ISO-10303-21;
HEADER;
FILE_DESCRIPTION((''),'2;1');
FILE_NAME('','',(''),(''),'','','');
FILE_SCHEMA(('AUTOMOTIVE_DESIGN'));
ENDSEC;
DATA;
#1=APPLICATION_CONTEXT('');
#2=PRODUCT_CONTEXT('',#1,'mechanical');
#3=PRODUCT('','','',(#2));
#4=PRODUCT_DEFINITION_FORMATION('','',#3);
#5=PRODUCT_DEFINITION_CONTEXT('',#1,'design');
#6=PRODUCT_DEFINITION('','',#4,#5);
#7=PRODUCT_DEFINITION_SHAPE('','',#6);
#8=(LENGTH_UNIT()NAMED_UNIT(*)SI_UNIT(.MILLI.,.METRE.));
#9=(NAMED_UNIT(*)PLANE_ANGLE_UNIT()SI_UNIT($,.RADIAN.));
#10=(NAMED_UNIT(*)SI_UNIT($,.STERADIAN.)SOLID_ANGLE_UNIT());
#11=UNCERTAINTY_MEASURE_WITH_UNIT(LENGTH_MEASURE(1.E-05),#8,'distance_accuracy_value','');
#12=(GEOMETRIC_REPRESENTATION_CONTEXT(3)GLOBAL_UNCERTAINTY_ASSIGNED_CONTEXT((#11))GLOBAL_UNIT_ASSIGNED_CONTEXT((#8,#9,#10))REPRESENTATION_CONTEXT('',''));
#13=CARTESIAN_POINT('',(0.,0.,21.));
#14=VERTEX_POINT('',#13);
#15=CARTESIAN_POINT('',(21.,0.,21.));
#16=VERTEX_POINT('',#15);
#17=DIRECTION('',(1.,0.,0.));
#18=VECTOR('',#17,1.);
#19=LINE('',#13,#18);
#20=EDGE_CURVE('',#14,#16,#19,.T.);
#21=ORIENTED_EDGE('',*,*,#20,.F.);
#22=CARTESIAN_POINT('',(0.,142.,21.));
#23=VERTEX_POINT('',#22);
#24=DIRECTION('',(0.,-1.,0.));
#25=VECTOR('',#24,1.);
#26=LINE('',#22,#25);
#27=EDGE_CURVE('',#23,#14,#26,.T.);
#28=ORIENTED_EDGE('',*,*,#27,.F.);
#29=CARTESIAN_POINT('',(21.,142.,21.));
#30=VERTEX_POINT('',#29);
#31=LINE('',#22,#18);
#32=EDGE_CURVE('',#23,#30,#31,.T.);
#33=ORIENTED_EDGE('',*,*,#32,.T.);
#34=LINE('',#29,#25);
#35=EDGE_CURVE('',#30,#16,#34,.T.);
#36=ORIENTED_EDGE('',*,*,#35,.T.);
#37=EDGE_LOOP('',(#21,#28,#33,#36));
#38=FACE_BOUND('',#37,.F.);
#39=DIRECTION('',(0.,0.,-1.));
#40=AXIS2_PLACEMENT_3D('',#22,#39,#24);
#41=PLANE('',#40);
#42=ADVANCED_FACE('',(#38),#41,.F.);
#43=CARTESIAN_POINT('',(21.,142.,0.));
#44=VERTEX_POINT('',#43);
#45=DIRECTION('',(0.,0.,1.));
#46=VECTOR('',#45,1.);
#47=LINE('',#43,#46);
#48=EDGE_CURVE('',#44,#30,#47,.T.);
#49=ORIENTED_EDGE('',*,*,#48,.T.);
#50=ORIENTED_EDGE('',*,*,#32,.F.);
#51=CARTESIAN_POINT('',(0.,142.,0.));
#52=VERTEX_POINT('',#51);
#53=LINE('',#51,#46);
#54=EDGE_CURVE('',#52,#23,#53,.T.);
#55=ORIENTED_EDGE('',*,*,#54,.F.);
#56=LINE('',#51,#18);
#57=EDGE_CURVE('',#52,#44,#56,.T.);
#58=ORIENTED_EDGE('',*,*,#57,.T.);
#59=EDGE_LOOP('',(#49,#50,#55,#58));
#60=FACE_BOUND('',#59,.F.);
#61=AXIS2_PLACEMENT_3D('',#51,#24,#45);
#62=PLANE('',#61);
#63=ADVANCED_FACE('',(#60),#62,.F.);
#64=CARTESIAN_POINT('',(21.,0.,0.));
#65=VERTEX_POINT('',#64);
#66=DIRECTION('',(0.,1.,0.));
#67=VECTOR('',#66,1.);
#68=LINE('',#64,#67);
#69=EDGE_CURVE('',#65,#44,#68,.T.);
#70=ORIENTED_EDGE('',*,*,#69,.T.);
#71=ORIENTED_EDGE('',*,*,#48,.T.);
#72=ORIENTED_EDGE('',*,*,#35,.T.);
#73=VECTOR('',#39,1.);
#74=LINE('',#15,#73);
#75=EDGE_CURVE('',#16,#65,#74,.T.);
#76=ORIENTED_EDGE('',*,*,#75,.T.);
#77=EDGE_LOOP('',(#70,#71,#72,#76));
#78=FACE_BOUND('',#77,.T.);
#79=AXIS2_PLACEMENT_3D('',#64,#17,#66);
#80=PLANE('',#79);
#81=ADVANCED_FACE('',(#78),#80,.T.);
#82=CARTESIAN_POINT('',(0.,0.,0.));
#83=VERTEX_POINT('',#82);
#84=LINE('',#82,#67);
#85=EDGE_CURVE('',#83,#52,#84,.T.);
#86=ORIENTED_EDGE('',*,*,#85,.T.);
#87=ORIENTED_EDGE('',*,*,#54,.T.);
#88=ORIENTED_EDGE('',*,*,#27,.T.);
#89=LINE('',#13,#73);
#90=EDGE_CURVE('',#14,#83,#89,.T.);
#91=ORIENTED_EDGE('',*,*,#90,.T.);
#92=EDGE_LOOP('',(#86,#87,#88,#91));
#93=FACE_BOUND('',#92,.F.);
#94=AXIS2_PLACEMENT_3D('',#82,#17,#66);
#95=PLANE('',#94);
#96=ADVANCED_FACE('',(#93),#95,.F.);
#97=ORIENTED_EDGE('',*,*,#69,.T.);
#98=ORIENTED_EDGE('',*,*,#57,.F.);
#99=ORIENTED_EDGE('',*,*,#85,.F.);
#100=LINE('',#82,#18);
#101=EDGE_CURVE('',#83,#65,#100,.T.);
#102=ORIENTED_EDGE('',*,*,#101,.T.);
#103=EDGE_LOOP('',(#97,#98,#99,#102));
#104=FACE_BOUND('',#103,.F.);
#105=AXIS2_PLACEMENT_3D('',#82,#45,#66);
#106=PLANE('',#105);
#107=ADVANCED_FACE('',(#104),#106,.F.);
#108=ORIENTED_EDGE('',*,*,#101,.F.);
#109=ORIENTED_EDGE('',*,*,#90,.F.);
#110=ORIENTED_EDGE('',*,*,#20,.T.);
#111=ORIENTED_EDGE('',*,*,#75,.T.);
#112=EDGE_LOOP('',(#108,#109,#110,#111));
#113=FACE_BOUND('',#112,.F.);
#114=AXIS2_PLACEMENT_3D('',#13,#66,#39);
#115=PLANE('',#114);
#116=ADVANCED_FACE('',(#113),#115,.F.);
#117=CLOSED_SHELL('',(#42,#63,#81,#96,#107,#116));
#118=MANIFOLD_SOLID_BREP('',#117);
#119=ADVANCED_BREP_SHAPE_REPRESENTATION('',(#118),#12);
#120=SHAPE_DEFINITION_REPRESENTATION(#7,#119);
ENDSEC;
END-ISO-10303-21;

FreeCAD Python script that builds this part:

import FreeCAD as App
import Part
import Sketcher

V = App.Vector


def add_polygon(sketch, points):
    """Adds a closed chain of lines whose ends are joined by coincident constraints."""
    first, n = sketch.GeometryCount, len(points)
    for a, b in zip(points, points[1:] + points[:1]):
        sketch.addGeometry(Part.LineSegment(App.Vector(*a, 0), App.Vector(*b, 0)), False)
    for i in range(n):
        sketch.addConstraint(Sketcher.Constraint("Coincident", first + i, 2, first + (i + 1) % n, 1))

doc = App.newDocument("Part")
body = doc.addObject("PartDesign::Body", "Body")

# Sketch on YZ plane
sketch1 = body.newObject("Sketcher::SketchObject", "Sketch")
sketch1.AttachmentSupport = (doc.getObject("YZ_Plane"), [""])
sketch1.MapMode = "FlatFace"
add_polygon(sketch1, [(0, 21), (0, 0), (142, 0), (142, 21)])  # lines 0-3
sketch1.addConstraint([
    Sketcher.Constraint("Vertical", 0),
    Sketcher.Constraint("Horizontal", 1),
    Sketcher.Constraint("Vertical", 2),
    Sketcher.Constraint("Horizontal", 3),
    Sketcher.Constraint("Coincident", 0, 2, -1, 1),
    Sketcher.Constraint("DistanceX", 1, 1, 1, 2, 142.0),
    Sketcher.Constraint("DistanceY", 0, 2, 0, 1, 21.0),
])
pad1 = body.newObject("PartDesign::Pad", "Pad")
pad1.Profile = sketch1
pad1.Length = 21

doc.recompute()
